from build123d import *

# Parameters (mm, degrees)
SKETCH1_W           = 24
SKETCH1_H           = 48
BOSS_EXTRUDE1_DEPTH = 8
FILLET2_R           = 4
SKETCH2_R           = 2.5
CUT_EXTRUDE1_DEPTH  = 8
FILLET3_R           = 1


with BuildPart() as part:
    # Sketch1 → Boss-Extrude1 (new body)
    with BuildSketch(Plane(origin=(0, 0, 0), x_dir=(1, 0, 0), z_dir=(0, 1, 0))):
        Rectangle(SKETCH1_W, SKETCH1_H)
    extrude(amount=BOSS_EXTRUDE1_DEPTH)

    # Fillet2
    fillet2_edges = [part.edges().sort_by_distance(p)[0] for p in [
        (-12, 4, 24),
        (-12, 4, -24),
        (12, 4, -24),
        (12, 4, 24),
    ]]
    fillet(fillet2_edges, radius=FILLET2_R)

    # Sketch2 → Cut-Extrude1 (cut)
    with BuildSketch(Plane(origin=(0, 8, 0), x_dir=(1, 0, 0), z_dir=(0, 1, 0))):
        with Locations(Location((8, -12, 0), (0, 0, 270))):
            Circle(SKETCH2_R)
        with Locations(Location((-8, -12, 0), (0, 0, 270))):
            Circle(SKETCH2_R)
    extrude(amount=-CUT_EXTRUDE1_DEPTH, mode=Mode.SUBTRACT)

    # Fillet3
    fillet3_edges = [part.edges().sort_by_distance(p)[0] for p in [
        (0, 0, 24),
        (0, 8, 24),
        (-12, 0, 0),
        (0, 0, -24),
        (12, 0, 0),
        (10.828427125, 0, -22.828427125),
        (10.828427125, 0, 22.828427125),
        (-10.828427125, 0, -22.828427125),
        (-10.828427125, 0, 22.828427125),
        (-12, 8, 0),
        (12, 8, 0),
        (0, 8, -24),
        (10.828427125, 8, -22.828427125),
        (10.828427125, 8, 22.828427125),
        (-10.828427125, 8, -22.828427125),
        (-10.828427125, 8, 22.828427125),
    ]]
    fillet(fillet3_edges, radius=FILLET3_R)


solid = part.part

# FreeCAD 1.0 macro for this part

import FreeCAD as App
import Part
import Sketcher
from FreeCAD import Vector


def edges_at(feature, points):
    """Names of the edges that pass closest to the given points."""
    edges = feature.Shape.Edges
    near = lambda p: min(range(len(edges)), key=lambda i: edges[i].distToShape(Part.Vertex(*p))[0])
    return sorted({f"Edge{near(p) + 1}" for p in points})

doc = App.newDocument("Part")
body = doc.addObject("PartDesign::Body", "Body")

sketch1 = body.newObject("Sketcher::SketchObject", "Sketch")
sketch1.AttachmentSupport = (doc.getObject("XZ_Plane"), [""])
sketch1.MapMode = "FlatFace"
sketch1.addGeometry(Part.LineSegment(Vector(-12, -24, 0), Vector(-12, 24, 0)), False)
sketch1.addGeometry(Part.LineSegment(Vector(-12, 24, 0), Vector(12, 24, 0)), False)
sketch1.addGeometry(Part.LineSegment(Vector(12, 24, 0), Vector(12, -24, 0)), False)
sketch1.addGeometry(Part.LineSegment(Vector(12, -24, 0), Vector(-12, -24, 0)), False)
sketch1.addConstraint(Sketcher.Constraint("Coincident", 0, 2, 1, 1))
sketch1.addConstraint(Sketcher.Constraint("Coincident", 1, 2, 2, 1))
sketch1.addConstraint(Sketcher.Constraint("Coincident", 2, 2, 3, 1))
sketch1.addConstraint(Sketcher.Constraint("Coincident", 3, 2, 0, 1))
sketch1.addConstraint(Sketcher.Constraint("Vertical", 0))
sketch1.addConstraint(Sketcher.Constraint("Horizontal", 1))
sketch1.addConstraint(Sketcher.Constraint("Vertical", 2))
sketch1.addConstraint(Sketcher.Constraint("Horizontal", 3))
sketch1.addConstraint(Sketcher.Constraint("Symmetric", 0, 2, 2, 2, -1, 1))
sketch1.addConstraint(Sketcher.Constraint("DistanceX", 1, 1, 1, 2, 24.0))
sketch1.addConstraint(Sketcher.Constraint("DistanceY", 0, 1, 0, 2, 48.0))
pad1 = body.newObject("PartDesign::Pad", "Pad")
pad1.Profile = sketch1
pad1.Length = 8
pad1.Reversed = True
doc.recompute()

fillet = body.newObject("PartDesign::Fillet", "Fillet")
fillet.Base = (pad1, edges_at(pad1, [
    (-12, 4, 24),
    (-12, 4, -24),
    (12, 4, -24),
    (12, 4, 24),
]))
fillet.Radius = 4

sketch2 = body.newObject("Sketcher::SketchObject", "Sketch001")
sketch2.AttachmentSupport = (doc.getObject("XZ_Plane"), [""])
sketch2.MapMode = "FlatFace"
sketch2.AttachmentOffset = App.Placement(Vector(0, 0, -8), App.Rotation())
sketch2.addGeometry(Part.Circle(Vector(8, 12, 0), Vector(0, 0, 1), 2.5), False)
sketch2.addGeometry(Part.Circle(Vector(-8, 12, 0), Vector(0, 0, 1), 2.5), False)
sketch2.addConstraint(Sketcher.Constraint("Equal", 0, 1))
sketch2.addConstraint(Sketcher.Constraint("Symmetric", 0, 3, 1, 3, -2))
sketch2.addConstraint(Sketcher.Constraint("Diameter", 0, 5.0))
sketch2.addConstraint(Sketcher.Constraint("DistanceX", -1, 1, 0, 3, 8.0))
sketch2.addConstraint(Sketcher.Constraint("DistanceY", -1, 1, 0, 3, 12.0))
pocket1 = body.newObject("PartDesign::Pocket", "Pocket")
pocket1.Profile = sketch2
pocket1.Length = 8
pocket1.Reversed = True
doc.recompute()

fillet2 = body.newObject("PartDesign::Fillet", "Fillet001")
fillet2.Base = (pocket1, edges_at(pocket1, [
    (0, 0, 24),
    (0, 8, 24),
    (-12, 0, 0),
    (0, 0, -24),
    (12, 0, 0),
    (10.828, 0, -22.828),
    (10.828, 0, 22.828),
    (-10.828, 0, -22.828),
    (-10.828, 0, 22.828),
    (-12, 8, 0),
    (12, 8, 0),
    (0, 8, -24),
    (10.828, 8, -22.828),
    (10.828, 8, 22.828),
    (-10.828, 8, -22.828),
    (-10.828, 8, 22.828),
]))
fillet2.Radius = 1

doc.recompute()
